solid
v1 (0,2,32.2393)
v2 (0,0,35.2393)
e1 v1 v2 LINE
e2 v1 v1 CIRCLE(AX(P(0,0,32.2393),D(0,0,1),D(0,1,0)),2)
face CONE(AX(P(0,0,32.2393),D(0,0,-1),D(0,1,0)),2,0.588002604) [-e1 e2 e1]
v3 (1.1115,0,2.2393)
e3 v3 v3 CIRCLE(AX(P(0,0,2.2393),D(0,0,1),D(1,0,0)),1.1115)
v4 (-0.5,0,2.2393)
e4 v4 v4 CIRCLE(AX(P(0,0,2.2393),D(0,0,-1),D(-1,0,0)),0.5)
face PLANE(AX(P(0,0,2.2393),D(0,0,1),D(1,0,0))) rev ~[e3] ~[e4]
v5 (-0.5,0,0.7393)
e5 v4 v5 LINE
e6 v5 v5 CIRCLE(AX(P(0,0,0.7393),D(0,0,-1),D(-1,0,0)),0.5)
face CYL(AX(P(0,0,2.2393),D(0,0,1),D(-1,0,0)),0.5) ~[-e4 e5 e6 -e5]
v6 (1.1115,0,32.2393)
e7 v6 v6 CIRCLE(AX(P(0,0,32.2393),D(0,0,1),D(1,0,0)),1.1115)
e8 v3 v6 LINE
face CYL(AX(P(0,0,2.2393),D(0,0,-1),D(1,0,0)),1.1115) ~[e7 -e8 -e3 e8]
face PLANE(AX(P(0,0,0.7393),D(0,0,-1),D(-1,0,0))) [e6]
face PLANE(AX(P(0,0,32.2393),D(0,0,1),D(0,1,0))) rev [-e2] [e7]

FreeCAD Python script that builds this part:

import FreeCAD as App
import Part
import Sketcher


def add_polygon(sketch, points):
    """Adds a closed chain of lines whose ends are joined by coincident constraints."""
    first, n = sketch.GeometryCount, len(points)
    for a, b in zip(points, points[1:] + points[:1]):
        sketch.addGeometry(Part.LineSegment(App.Vector(*a, 0), App.Vector(*b, 0)), False)
    for i in range(n):
        sketch.addConstraint(Sketcher.Constraint("Coincident", first + i, 2, first + (i + 1) % n, 1))

doc = App.newDocument("Part")
body = doc.addObject("PartDesign::Body", "Body")

sketch1 = body.newObject("Sketcher::SketchObject", "Sketch")
sketch1.AttachmentSupport = (doc.getObject("XY_Plane"), [""])
sketch1.MapMode = "FlatFace"
sketch1.AttachmentOffset = App.Placement(App.Vector(0, 0, 2.2393), App.Rotation())
sketch1.addGeometry(Part.Circle(App.Vector(0, 0, 0), App.Vector(0, 0, 1), 1.1), False)
sketch1.addConstraint(Sketcher.Constraint("Coincident", 0, 3, -1, 1))
sketch1.addConstraint(Sketcher.Constraint("Diameter", 0, 2.223))
pad1 = body.newObject("PartDesign::Pad", "Pad")
pad1.Profile = sketch1
pad1.Length = 30

sketch2 = body.newObject("Sketcher::SketchObject", "Sketch001")
sketch2.AttachmentSupport = (doc.getObject("YZ_Plane"), [""])
sketch2.MapMode = "FlatFace"
add_polygon(sketch2, [(2, 32.2), (0, 32.2), (0, 35.2)])
sketch2.addConstraint(Sketcher.Constraint("Horizontal", 0))
sketch2.addConstraint(Sketcher.Constraint("Vertical", 1))
sketch2.addConstraint(Sketcher.Constraint("PointOnObject", 0, 2, -2))
sketch2.addConstraint(Sketcher.Constraint("DistanceX", 0, 2, 0, 1, 2.0))
sketch2.addConstraint(Sketcher.Constraint("DistanceY", 1, 1, 1, 2, 3.0))
sketch2.addConstraint(Sketcher.Constraint("DistanceY", -1, 1, 0, 2, 32.2393))
revolution = body.newObject("PartDesign::Revolution", "Revolution")
revolution.Profile = sketch2
revolution.ReferenceAxis = (sketch2, ["V_Axis"])
revolution.Angle = 360

sketch3 = body.newObject("Sketcher::SketchObject", "Sketch002")
sketch3.AttachmentSupport = (doc.getObject("XY_Plane"), [""])
sketch3.MapMode = "FlatFace"
sketch3.AttachmentOffset = App.Placement(App.Vector(0, 0, 2.2393), App.Rotation())
sketch3.addGeometry(Part.Circle(App.Vector(0, 0, 0), App.Vector(0, 0, 1), 0.5), False)
sketch3.addConstraint(Sketcher.Constraint("Coincident", 0, 3, -1, 1))
sketch3.addConstraint(Sketcher.Constraint("Diameter", 0, 1.0))
pad2 = body.newObject("PartDesign::Pad", "Pad001")
pad2.Profile = sketch3
pad2.Length = 1.5
pad2.Reversed = True

doc.recompute()
